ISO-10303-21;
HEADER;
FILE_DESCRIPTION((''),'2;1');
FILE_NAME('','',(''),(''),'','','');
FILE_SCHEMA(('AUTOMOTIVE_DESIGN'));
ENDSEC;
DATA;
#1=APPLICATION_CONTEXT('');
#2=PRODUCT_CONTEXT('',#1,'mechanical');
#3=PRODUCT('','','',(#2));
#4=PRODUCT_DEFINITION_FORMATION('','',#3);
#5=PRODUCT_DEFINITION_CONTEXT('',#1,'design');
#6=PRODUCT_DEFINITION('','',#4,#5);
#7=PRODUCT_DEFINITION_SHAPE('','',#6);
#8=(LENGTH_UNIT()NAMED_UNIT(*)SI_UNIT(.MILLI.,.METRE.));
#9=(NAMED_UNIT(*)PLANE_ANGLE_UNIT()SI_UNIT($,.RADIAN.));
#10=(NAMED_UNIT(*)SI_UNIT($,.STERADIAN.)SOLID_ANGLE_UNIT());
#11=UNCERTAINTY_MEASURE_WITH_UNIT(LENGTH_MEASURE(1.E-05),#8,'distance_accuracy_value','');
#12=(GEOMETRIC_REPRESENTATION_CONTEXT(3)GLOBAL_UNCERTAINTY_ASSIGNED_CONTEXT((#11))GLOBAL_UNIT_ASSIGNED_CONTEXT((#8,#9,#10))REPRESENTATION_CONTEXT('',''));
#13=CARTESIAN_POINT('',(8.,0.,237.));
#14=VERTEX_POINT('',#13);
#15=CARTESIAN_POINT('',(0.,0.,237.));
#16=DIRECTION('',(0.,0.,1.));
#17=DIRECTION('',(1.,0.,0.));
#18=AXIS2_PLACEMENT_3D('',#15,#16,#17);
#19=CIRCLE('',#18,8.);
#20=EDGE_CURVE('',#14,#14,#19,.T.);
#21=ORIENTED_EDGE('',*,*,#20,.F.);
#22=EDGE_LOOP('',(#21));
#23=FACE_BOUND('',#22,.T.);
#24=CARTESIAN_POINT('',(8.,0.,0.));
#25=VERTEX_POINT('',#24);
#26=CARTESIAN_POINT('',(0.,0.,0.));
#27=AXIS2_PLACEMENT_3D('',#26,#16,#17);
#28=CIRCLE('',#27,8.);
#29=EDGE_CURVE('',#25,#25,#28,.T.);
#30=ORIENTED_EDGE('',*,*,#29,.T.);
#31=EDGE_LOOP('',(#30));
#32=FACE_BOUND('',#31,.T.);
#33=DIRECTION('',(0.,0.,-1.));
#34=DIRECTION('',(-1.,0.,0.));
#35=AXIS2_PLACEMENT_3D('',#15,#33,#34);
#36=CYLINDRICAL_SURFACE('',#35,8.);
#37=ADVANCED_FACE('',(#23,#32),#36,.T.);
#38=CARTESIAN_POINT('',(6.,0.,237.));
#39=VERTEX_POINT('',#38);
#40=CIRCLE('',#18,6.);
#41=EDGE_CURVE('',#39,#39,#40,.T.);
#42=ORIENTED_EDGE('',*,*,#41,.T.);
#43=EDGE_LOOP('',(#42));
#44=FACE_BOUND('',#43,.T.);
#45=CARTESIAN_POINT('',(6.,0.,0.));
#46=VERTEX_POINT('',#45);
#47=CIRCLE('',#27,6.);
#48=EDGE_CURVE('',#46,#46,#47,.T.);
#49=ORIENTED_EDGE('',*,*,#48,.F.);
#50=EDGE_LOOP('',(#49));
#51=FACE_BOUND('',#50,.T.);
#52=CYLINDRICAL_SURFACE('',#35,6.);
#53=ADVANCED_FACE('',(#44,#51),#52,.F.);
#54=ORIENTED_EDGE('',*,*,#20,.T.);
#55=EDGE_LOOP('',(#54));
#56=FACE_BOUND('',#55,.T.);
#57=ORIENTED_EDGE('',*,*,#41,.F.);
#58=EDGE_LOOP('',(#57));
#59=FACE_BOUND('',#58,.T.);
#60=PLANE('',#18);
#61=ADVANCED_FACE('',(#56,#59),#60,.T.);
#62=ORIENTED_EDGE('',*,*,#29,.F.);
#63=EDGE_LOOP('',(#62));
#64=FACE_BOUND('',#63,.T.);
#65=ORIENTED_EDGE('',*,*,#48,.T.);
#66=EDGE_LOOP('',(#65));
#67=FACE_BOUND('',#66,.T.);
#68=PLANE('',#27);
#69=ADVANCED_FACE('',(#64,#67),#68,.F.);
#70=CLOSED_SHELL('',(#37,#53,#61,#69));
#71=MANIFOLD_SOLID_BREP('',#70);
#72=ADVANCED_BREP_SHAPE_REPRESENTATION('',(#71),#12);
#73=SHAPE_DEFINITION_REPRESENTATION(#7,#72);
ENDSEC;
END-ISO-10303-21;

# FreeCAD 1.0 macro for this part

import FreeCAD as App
import Part
import Sketcher

V = App.Vector
Q = App.Units.Quantity

doc = App.newDocument("Part")
params = doc.addObject("Spreadsheet::Sheet", "Params")
for row, (alias, value) in enumerate([
    ("sketch1_diameter", "16 mm"),
    ("sketch1_diameter2", "12 mm"),
    ("pad1_length", "237 mm"),
], start=1):
    params.set(f"A{row}", alias)
    params.set(f"B{row}", "=" + value)
    params.setAlias(f"B{row}", alias)

body = doc.addObject("PartDesign::Body", "Body")

sketch1 = doc.addObject("Sketcher::SketchObject", "Sketch")
body.addObject(sketch1)
sketch1.AttachmentSupport = (doc.XY_Plane, [""])
sketch1.MapMode = "FlatFace"
sketch1.addGeometry(Part.Circle(V(0, 0, 0), V(0, 0, 1), 8), False)
sketch1.addGeometry(Part.Circle(V(0, 0, 0), V(0, 0, 1), 6), False)
sketch1.addConstraint(Sketcher.Constraint("Coincident", 0, 3, -1, 1))
sketch1.addConstraint(Sketcher.Constraint("Coincident", 1, 3, -1, 1))
sketch1.addConstraint(Sketcher.Constraint("Diameter", 0, Q("16 mm")))
sketch1.addConstraint(Sketcher.Constraint("Diameter", 1, Q("12 mm")))
sketch1.setExpression("Constraints[2]", "Params.sketch1_diameter")
sketch1.setExpression("Constraints[3]", "Params.sketch1_diameter2")
pad1 = doc.addObject("PartDesign::Pad", "Pad")
body.addObject(pad1)
pad1.Profile = sketch1
pad1.setExpression("Length", "Params.pad1_length")

doc.recompute()
